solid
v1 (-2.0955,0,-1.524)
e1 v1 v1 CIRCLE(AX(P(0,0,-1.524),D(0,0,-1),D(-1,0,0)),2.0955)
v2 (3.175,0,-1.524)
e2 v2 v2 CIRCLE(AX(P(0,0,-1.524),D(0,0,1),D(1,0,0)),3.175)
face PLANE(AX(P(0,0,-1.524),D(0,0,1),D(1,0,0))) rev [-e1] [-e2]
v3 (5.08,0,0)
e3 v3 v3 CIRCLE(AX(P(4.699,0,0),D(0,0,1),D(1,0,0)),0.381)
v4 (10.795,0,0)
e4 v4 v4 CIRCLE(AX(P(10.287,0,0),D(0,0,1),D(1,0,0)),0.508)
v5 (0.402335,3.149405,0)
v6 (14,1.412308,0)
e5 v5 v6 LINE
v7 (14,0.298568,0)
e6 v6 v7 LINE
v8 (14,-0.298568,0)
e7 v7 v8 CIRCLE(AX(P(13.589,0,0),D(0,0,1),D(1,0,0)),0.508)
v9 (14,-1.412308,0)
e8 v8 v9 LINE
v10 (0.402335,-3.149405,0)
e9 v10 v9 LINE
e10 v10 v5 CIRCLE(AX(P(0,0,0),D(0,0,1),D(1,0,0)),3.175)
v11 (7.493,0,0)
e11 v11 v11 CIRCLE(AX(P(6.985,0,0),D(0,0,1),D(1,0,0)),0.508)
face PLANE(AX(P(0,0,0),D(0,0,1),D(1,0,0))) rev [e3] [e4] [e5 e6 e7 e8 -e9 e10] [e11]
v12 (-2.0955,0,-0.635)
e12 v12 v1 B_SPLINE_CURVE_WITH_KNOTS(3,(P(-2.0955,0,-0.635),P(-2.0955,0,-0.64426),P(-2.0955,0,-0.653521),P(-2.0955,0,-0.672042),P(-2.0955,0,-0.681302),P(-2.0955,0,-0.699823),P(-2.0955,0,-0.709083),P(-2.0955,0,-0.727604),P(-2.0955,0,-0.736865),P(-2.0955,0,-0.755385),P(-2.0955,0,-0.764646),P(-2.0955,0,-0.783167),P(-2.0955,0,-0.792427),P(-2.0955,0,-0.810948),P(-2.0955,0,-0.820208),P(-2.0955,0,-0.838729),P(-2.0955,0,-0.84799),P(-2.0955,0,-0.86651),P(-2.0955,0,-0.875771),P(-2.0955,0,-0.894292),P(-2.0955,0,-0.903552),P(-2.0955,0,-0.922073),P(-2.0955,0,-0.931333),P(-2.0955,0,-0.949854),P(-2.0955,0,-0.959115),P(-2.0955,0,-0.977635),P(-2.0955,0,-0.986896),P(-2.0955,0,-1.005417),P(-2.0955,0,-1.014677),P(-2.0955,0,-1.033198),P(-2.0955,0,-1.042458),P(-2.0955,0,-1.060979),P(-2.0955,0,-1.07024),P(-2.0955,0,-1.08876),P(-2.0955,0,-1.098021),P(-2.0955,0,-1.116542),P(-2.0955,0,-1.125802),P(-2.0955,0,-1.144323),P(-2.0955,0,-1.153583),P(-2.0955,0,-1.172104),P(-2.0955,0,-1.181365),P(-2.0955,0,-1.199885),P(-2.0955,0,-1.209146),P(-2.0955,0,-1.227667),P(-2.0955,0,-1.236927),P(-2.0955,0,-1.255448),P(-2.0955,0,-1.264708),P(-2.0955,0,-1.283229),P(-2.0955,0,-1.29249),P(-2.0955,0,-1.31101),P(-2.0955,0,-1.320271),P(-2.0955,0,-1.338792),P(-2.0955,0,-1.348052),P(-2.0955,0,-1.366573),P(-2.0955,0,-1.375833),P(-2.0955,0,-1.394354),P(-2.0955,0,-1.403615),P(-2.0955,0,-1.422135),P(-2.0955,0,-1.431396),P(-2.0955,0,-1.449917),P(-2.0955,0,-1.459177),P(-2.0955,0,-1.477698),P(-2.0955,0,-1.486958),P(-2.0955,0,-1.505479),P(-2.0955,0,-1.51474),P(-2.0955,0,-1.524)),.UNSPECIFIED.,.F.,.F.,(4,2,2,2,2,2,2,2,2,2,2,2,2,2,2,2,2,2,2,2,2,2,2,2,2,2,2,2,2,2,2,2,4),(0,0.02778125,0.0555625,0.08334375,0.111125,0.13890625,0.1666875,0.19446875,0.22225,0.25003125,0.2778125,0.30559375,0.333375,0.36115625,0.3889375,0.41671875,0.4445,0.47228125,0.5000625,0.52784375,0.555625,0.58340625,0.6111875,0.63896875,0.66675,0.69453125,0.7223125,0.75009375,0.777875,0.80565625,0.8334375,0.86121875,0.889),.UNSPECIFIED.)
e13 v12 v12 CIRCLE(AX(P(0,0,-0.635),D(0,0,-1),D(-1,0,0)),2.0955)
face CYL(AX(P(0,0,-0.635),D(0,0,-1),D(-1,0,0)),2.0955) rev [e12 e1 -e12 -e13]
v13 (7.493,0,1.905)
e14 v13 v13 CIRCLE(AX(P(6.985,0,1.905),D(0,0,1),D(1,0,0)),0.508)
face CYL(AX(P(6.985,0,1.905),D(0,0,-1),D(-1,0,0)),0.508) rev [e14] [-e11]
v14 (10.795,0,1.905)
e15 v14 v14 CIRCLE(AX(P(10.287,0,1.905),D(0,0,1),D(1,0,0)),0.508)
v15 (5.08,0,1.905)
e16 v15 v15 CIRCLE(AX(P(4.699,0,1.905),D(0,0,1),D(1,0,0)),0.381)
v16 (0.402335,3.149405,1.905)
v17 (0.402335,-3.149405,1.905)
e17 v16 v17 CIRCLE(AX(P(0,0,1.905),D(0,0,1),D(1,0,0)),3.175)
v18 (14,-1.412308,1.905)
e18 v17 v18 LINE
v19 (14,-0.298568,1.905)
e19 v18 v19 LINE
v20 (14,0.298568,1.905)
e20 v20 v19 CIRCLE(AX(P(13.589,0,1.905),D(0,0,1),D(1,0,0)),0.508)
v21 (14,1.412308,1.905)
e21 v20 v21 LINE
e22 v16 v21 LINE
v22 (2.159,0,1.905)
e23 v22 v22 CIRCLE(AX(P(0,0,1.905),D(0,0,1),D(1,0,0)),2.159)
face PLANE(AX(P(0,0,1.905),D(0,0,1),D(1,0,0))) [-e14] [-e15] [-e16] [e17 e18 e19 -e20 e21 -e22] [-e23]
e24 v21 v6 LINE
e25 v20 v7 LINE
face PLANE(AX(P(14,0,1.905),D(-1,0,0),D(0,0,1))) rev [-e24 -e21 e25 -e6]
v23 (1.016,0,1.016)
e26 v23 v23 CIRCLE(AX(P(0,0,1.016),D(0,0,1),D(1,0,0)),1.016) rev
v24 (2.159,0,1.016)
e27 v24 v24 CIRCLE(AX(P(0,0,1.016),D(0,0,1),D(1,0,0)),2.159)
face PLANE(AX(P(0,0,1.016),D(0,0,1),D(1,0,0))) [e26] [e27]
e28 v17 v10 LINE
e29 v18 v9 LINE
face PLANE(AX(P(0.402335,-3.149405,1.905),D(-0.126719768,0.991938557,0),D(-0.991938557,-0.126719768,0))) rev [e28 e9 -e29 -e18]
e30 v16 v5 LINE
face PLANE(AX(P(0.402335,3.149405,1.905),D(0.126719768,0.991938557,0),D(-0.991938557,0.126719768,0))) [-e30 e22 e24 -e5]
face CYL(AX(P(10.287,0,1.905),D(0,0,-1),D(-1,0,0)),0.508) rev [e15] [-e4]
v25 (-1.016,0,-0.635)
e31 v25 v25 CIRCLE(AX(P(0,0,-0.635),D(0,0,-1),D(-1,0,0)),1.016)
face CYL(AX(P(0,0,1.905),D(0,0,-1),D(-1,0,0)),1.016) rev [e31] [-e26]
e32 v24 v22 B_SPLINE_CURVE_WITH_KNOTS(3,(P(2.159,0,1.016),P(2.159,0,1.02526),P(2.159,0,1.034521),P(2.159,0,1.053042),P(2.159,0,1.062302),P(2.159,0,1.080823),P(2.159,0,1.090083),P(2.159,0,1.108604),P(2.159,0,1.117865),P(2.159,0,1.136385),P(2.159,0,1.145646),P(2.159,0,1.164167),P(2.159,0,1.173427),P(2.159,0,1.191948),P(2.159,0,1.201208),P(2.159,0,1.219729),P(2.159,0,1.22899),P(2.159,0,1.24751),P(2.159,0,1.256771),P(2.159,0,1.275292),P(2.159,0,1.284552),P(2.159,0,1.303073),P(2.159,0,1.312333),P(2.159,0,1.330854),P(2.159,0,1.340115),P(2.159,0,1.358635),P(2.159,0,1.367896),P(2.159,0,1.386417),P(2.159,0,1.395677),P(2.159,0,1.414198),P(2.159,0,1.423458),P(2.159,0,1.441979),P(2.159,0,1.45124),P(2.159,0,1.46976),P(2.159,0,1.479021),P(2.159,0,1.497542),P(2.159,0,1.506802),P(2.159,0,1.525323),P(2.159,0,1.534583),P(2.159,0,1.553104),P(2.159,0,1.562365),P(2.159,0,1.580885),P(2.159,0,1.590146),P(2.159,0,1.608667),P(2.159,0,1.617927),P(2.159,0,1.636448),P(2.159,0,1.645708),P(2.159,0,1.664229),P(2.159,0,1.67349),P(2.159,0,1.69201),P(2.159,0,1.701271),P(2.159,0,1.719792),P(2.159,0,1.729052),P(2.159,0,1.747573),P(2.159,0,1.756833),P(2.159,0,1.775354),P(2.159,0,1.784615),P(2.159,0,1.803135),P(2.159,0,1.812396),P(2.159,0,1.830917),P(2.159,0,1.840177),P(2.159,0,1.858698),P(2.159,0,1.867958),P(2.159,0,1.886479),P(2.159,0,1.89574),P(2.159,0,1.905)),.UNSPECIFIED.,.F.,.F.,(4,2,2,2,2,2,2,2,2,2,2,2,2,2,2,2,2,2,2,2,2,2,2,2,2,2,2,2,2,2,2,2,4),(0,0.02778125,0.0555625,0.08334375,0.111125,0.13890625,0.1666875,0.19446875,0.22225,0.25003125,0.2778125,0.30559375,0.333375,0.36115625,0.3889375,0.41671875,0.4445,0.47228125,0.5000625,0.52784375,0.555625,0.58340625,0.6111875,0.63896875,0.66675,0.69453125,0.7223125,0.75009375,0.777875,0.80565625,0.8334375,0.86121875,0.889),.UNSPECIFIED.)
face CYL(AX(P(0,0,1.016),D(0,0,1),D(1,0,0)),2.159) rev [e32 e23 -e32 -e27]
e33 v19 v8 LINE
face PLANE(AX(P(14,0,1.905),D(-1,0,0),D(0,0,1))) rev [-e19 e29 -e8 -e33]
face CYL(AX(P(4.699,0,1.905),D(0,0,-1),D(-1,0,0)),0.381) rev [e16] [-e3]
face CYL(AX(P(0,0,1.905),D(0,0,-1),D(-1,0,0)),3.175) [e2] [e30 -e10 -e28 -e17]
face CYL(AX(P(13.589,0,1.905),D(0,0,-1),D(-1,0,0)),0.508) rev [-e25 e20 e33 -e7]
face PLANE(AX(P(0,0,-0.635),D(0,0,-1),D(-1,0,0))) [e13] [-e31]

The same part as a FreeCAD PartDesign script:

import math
import FreeCAD as App
import Part
import Sketcher
Q = App.Units.Quantity

doc = App.newDocument("Part")
params = doc.addObject("Spreadsheet::Sheet", "Params")
for row, (alias, value) in enumerate([
    ("sketch1_diameter", "0.08 in"),
    ("sketch1_diameter2", "0.03 in"),
    ("sketch1_diameter3", "0.04 in"),
    ("sketch1_radius", "0.125 in"),
    ("pad1_length", "0.075 in"),
    ("sketch2_diameter", "0.25 in"),
    ("sketch2_diameter2", "0.08 in"),
    ("pad2_length", "0.06 in"),
    ("sketch3_diameter", "0.17 in"),
    ("sketch3_diameter2", "0.08 in"),
    ("pocket1_length", "0.035 in"),
    ("sketch4_diameter", "0.08 in"),
    ("sketch4_diameter2", "0.165 in"),
    ("pocket2_length", "0.035 in"),
    ("sketch5_radius", "0.02 in"),
], start=1):
    params.set(f"A{row}", alias)
    params.set(f"B{row}", "=" + value)
    params.setAlias(f"B{row}", alias)

body = doc.addObject("PartDesign::Body", "Body")

# Sketch on XY plane
sketch1 = body.newObject("Sketcher::SketchObject", "Sketch")
sketch1.AttachmentSupport = (doc.getObject("XY_Plane"), [""])
sketch1.MapMode = "FlatFace"
sketch1.addGeometry([
    Part.LineSegment(App.Vector(17.66, 0.94, 0), App.Vector(0.4, 3.15, 0)),  # 0
    Part.ArcOfCircle(Part.Circle(App.Vector(0, 0, 0), App.Vector(0, 0, 1), 3.17), math.radians(83), math.radians(277)),  # 1
    Part.LineSegment(App.Vector(0.4, -3.15, 0), App.Vector(17.66, -0.94, 0)),  # 2
    Part.ArcOfCircle(Part.Circle(App.Vector(17.54, 0, 0), App.Vector(0, 0, 1), 0.95), math.radians(-83), math.radians(83)),  # 3
    Part.Circle(App.Vector(0, 0, 0), App.Vector(0, 0, 1), 1.02),  # 4
    Part.Circle(App.Vector(4.7, 0, 0), App.Vector(0, 0, 1), 0.38),  # 5
    Part.Circle(App.Vector(6.99, 0, 0), App.Vector(0, 0, 1), 0.51),  # 6
    Part.Circle(App.Vector(10.29, 0, 0), App.Vector(0, 0, 1), 0.51),  # 7
    Part.Circle(App.Vector(13.59, 0, 0), App.Vector(0, 0, 1), 0.51),  # 8
    Part.Circle(App.Vector(16.89, 0, 0), App.Vector(0, 0, 1), 0.51),  # 9
], False)
sketch1.addConstraint([
    Sketcher.Constraint("Tangent", 0, 2, 1, 1),
    Sketcher.Constraint("Tangent", 1, 2, 2, 1),
    Sketcher.Constraint("Tangent", 2, 2, 3, 1),
    Sketcher.Constraint("Tangent", 3, 2, 0, 1),
    Sketcher.Constraint("Coincident", 1, 3, -1, 1),
    Sketcher.Constraint("Coincident", 4, 3, -1, 1),
    Sketcher.Constraint("Equal", 6, 7),
    Sketcher.Constraint("Equal", 7, 8),
    Sketcher.Constraint("Equal", 8, 9),
    Sketcher.Constraint("PointOnObject", 3, 3, -1),
    Sketcher.Constraint("PointOnObject", 5, 3, -1),
    Sketcher.Constraint("PointOnObject", 6, 3, -1),
    Sketcher.Constraint("PointOnObject", 7, 3, -1),
    Sketcher.Constraint("PointOnObject", 8, 3, -1),
    Sketcher.Constraint("PointOnObject", 9, 3, -1),
    Sketcher.Constraint("Diameter", 4, Q("0.08 in")),
    Sketcher.Constraint("Diameter", 5, Q("0.03 in")),
    Sketcher.Constraint("Diameter", 6, Q("0.04 in")),
    Sketcher.Constraint("Radius", 1, Q("0.125 in")),
    Sketcher.Constraint("Radius", 3, Q("0.0375 in")),
    Sketcher.Constraint("DistanceX", 5, 3, 6, 3, Q("0.09 in")),
    Sketcher.Constraint("DistanceX", 6, 3, 7, 3, Q("0.13 in")),
    Sketcher.Constraint("DistanceX", 7, 3, 8, 3, Q("0.13 in")),
    Sketcher.Constraint("DistanceX", 8, 3, 9, 3, Q("0.13 in")),
    Sketcher.Constraint("DistanceX", -1, 1, 5, 3, Q("0.185 in")),
    Sketcher.Constraint("DistanceX", -1, 1, 3, 3, Q("0.6905 in")),
])
sketch1.setExpression("Constraints[15]", "Params.sketch1_diameter")
sketch1.setExpression("Constraints[16]", "Params.sketch1_diameter2")
sketch1.setExpression("Constraints[17]", "Params.sketch1_diameter3")
sketch1.setExpression("Constraints[18]", "Params.sketch1_radius")
pad1 = body.newObject("PartDesign::Pad", "Pad")
pad1.Profile = sketch1
pad1.setExpression("Length", "Params.pad1_length")

# Sketch on XY plane
sketch2 = body.newObject("Sketcher::SketchObject", "Sketch001")
sketch2.AttachmentSupport = (doc.getObject("XY_Plane"), [""])
sketch2.MapMode = "FlatFace"
sketch2.AttachmentOffset = App.Placement(App.Vector(0, 0, -0.06 * 25.4), App.Rotation())
sketch2.addGeometry([
    Part.Circle(App.Vector(0, 0, 0), App.Vector(0, 0, 1), 3.2),
    Part.Circle(App.Vector(0, 0, 0), App.Vector(0, 0, 1), 1),
], False)
sketch2.addConstraint([
    Sketcher.Constraint("Coincident", 0, 3, -1, 1),
    Sketcher.Constraint("Coincident", 1, 3, -1, 1),
    Sketcher.Constraint("Diameter", 0, Q("0.25 in")),
    Sketcher.Constraint("Diameter", 1, Q("0.08 in")),
])
sketch2.setExpression("Constraints[2]", "Params.sketch2_diameter")
sketch2.setExpression("Constraints[3]", "Params.sketch2_diameter2")
pad2 = body.newObject("PartDesign::Pad", "Pad001")
pad2.Profile = sketch2
pad2.setExpression("Length", "Params.pad2_length")

# Sketch on XY plane
sketch3 = body.newObject("Sketcher::SketchObject", "Sketch002")
sketch3.AttachmentSupport = (doc.getObject("XY_Plane"), [""])
sketch3.MapMode = "FlatFace"
sketch3.AttachmentOffset = App.Placement(App.Vector(0, 0, 0.04 * 25.4), App.Rotation())
sketch3.addGeometry([
    Part.Circle(App.Vector(0, 0, 0), App.Vector(0, 0, 1), 2.2),
    Part.Circle(App.Vector(0, 0, 0), App.Vector(0, 0, 1), 1),
], False)
sketch3.addConstraint([
    Sketcher.Constraint("Coincident", 0, 3, -1, 1),
    Sketcher.Constraint("Coincident", 1, 3, -1, 1),
    Sketcher.Constraint("Diameter", 0, Q("0.17 in")),
    Sketcher.Constraint("Diameter", 1, Q("0.08 in")),
])
sketch3.setExpression("Constraints[2]", "Params.sketch3_diameter")
sketch3.setExpression("Constraints[3]", "Params.sketch3_diameter2")
pocket1 = body.newObject("PartDesign::Pocket", "Pocket")
pocket1.Profile = sketch3
pocket1.setExpression("Length", "Params.pocket1_length")
pocket1.Reversed = True

# Sketch on XY plane
sketch4 = body.newObject("Sketcher::SketchObject", "Sketch003")
sketch4.AttachmentSupport = (doc.getObject("XY_Plane"), [""])
sketch4.MapMode = "FlatFace"
sketch4.AttachmentOffset = App.Placement(App.Vector(0, 0, -0.06 * 25.4), App.Rotation())
sketch4.addGeometry([
    Part.Circle(App.Vector(0, 0, 0), App.Vector(0, 0, 1), 2.1),
    Part.Circle(App.Vector(0, 0, 0), App.Vector(0, 0, 1), 1),
], False)
sketch4.addConstraint([
    Sketcher.Constraint("Coincident", 0, 3, -1, 1),
    Sketcher.Constraint("Coincident", 1, 3, -1, 1),
    Sketcher.Constraint("Diameter", 1, Q("0.08 in")),
    Sketcher.Constraint("Diameter", 0, Q("0.165 in")),
])
sketch4.setExpression("Constraints[2]", "Params.sketch4_diameter")
sketch4.setExpression("Constraints[3]", "Params.sketch4_diameter2")
pocket2 = body.newObject("PartDesign::Pocket", "Pocket001")
pocket2.Profile = sketch4
pocket2.setExpression("Length", "Params.pocket2_length")
pocket2.Reversed = True

# Sketch on XY plane
sketch5 = body.newObject("Sketcher::SketchObject", "Sketch004")
sketch5.AttachmentSupport = (doc.getObject("XY_Plane"), [""])
sketch5.MapMode = "FlatFace"
sketch5.addGeometry([
    Part.LineSegment(App.Vector(17.7, -0.9, 0), App.Vector(14, -1.4, 0)),  # 0
    Part.LineSegment(App.Vector(14, -1.4, 0), App.Vector(14, -0.3, 0)),  # 1
    Part.ArcOfCircle(Part.Circle(App.Vector(13.6, 0, 0), App.Vector(0, 0, 1), 0.5), math.radians(-36), math.radians(36)),  # 2
    Part.LineSegment(App.Vector(14, 0.3, 0), App.Vector(14, 1.4, 0)),  # 3
    Part.LineSegment(App.Vector(14, 1.4, 0), App.Vector(17.7, 0.9, 0)),  # 4
    Part.ArcOfCircle(Part.Circle(App.Vector(17.5, 0, 0), App.Vector(0, 0, 1), 1), math.radians(-83), math.radians(83)),  # 5
], False)
sketch5.addConstraint([
    Sketcher.Constraint("Coincident", 0, 2, 1, 1),
    Sketcher.Constraint("Coincident", 1, 2, 2, 1),
    Sketcher.Constraint("Coincident", 2, 2, 3, 1),
    Sketcher.Constraint("Coincident", 3, 2, 4, 1),
    Sketcher.Constraint("Tangent", 4, 2, 5, 2),
    Sketcher.Constraint("Tangent", 5, 1, 0, 1),
    Sketcher.Constraint("Vertical", 1),
    Sketcher.Constraint("Vertical", 3),
    Sketcher.Constraint("Symmetric", 1, 2, 2, 2, -1),
    Sketcher.Constraint("Symmetric", 4, 2, 5, 1, -1),
    Sketcher.Constraint("Radius", 2, Q("0.02 in")),
    Sketcher.Constraint("Radius", 5, Q("0.0375 in")),
    Sketcher.Constraint("DistanceX", -1, 1, 2, 3, Q("0.535 in")),
    Sketcher.Constraint("DistanceX", -1, 1, 5, 3, Q("0.6905 in")),
    Sketcher.Constraint("DistanceY", 1, 1, 1, 2, 1.11374),
    Sketcher.Constraint("DistanceX", -1, 1, 0, 2, 14.0),
])
sketch5.setExpression("Constraints[10]", "Params.sketch5_radius")
pocket3 = body.newObject("PartDesign::Pocket", "Pocket002")
pocket3.Profile = sketch5
pocket3.Type = "ThroughAll"
pocket3.Midplane = True

doc.recompute()
